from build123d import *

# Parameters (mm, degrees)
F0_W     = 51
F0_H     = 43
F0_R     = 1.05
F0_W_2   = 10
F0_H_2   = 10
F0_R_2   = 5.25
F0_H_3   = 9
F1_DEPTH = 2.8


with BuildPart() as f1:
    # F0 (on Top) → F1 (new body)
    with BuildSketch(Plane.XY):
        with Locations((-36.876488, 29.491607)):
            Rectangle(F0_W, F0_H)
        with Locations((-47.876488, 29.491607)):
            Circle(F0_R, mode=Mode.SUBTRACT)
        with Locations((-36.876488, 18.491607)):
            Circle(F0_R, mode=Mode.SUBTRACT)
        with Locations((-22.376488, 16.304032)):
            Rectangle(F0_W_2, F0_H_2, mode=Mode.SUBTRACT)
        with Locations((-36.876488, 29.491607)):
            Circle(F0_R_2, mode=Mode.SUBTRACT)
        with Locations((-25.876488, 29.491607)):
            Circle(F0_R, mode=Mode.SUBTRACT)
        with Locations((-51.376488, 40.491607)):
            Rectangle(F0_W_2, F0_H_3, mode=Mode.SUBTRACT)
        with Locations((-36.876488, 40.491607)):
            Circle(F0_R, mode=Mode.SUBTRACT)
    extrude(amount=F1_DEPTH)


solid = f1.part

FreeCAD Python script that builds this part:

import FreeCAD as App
import Part
import Sketcher
from FreeCAD import Vector
Q = App.Units.Quantity

doc = App.newDocument("Part")
params = doc.addObject("Spreadsheet::Sheet", "Params")
for row, (alias, value) in enumerate([
    ("sketch1_diameter", "2.1 mm"),
    ("sketch1_diameter2", "10.5 mm"),
    ("sketch1_width", "51 mm"),
    ("sketch1_width2", "10 mm"),
    ("sketch1_height", "43 mm"),
    ("pad1_length", "2.8 mm"),
], start=1):
    params.set(f"A{row}", alias)
    params.set(f"B{row}", "=" + value)
    params.setAlias(f"B{row}", alias)

body = doc.addObject("PartDesign::Body", "Body")

# Sketch on XY plane
sketch1 = body.newObject("Sketcher::SketchObject", "Sketch")
sketch1.AttachmentSupport = (doc.getObject("XY_Plane"), [""])
sketch1.MapMode = "FlatFace"
sketch1.addGeometry([
    Part.LineSegment(Vector(-62.376488, 50.991607, 0), Vector(-62.376488, 7.991607, 0)),  # 0
    Part.LineSegment(Vector(-62.376488, 7.991607, 0), Vector(-11.376488, 7.991607, 0)),  # 1
    Part.LineSegment(Vector(-11.376488, 7.991607, 0), Vector(-11.376488, 50.991607, 0)),  # 2
    Part.LineSegment(Vector(-11.376488, 50.991607, 0), Vector(-62.376488, 50.991607, 0)),  # 3
    Part.Circle(Vector(-36.876488, 18.491607, 0), Vector(0, 0, 1), 1.05),  # 4
    Part.LineSegment(Vector(-17.376488, 11.304032, 0), Vector(-27.376488, 11.304032, 0)),  # 5
    Part.LineSegment(Vector(-27.376488, 11.304032, 0), Vector(-27.376488, 21.304032, 0)),  # 6
    Part.LineSegment(Vector(-27.376488, 21.304032, 0), Vector(-17.376488, 21.304032, 0)),  # 7
    Part.LineSegment(Vector(-17.376488, 21.304032, 0), Vector(-17.376488, 11.304032, 0)),  # 8
    Part.Circle(Vector(-47.876488, 29.491607, 0), Vector(0, 0, 1), 1.05),  # 9
    Part.LineSegment(Vector(-46.376488, 35.991607, 0), Vector(-56.376488, 35.991607, 0)),  # 10
    Part.LineSegment(Vector(-56.376488, 35.991607, 0), Vector(-56.376488, 44.991607, 0)),  # 11
    Part.LineSegment(Vector(-56.376488, 44.991607, 0), Vector(-46.376488, 44.991607, 0)),  # 12
    Part.LineSegment(Vector(-46.376488, 44.991607, 0), Vector(-46.376488, 35.991607, 0)),  # 13
    Part.Circle(Vector(-36.876488, 29.491607, 0), Vector(0, 0, 1), 5.25),  # 14
    Part.Circle(Vector(-25.876488, 29.491607, 0), Vector(0, 0, 1), 1.05),  # 15
    Part.Circle(Vector(-36.876488, 40.491607, 0), Vector(0, 0, 1), 1.05),  # 16
], False)
sketch1.addConstraint([
    Sketcher.Constraint("Coincident", 0, 2, 1, 1),
    Sketcher.Constraint("Coincident", 1, 2, 2, 1),
    Sketcher.Constraint("Coincident", 2, 2, 3, 1),
    Sketcher.Constraint("Coincident", 3, 2, 0, 1),
    Sketcher.Constraint("Coincident", 5, 2, 6, 1),
    Sketcher.Constraint("Coincident", 6, 2, 7, 1),
    Sketcher.Constraint("Coincident", 7, 2, 8, 1),
    Sketcher.Constraint("Coincident", 8, 2, 5, 1),
    Sketcher.Constraint("Coincident", 10, 2, 11, 1),
    Sketcher.Constraint("Coincident", 11, 2, 12, 1),
    Sketcher.Constraint("Coincident", 12, 2, 13, 1),
    Sketcher.Constraint("Coincident", 13, 2, 10, 1),
    Sketcher.Constraint("Vertical", 0),
    Sketcher.Constraint("Horizontal", 1),
    Sketcher.Constraint("Vertical", 2),
    Sketcher.Constraint("Horizontal", 3),
    Sketcher.Constraint("Horizontal", 5),
    Sketcher.Constraint("Vertical", 6),
    Sketcher.Constraint("Horizontal", 7),
    Sketcher.Constraint("Vertical", 8),
    Sketcher.Constraint("Horizontal", 10),
    Sketcher.Constraint("Vertical", 11),
    Sketcher.Constraint("Horizontal", 12),
    Sketcher.Constraint("Vertical", 13),
    Sketcher.Constraint("Equal", 4, 9),
    Sketcher.Constraint("Equal", 9, 15),
    Sketcher.Constraint("Equal", 15, 16),
    Sketcher.Constraint("Horizontal", 9, 3, 14, 3),
    Sketcher.Constraint("Horizontal", 14, 3, 15, 3),
    Sketcher.Constraint("Vertical", 4, 3, 14, 3),
    Sketcher.Constraint("Vertical", 14, 3, 16, 3),
    Sketcher.Constraint("Equal", 7, 10),
    Sketcher.Constraint("Equal", 12, 6),
    Sketcher.Constraint("Diameter", 4, Q("2.1 mm")),
    Sketcher.Constraint("Diameter", 14, Q("10.5 mm")),
    Sketcher.Constraint("DistanceX", 1, 1, 1, 2, Q("51 mm")),
    Sketcher.Constraint("DistanceX", 5, 2, 5, 1, Q("10 mm")),
    Sketcher.Constraint("DistanceY", 0, 2, 0, 1, Q("43 mm")),
    Sketcher.Constraint("DistanceY", 11, 1, 11, 2, Q("9 mm")),
    Sketcher.Constraint("DistanceX", 9, 3, 4, 3, Q("11 mm")),
    Sketcher.Constraint("DistanceY", 4, 3, 9, 3, Q("11 mm")),
    Sketcher.Constraint("DistanceX", 14, 3, 15, 3, Q("11 mm")),
    Sketcher.Constraint("DistanceY", 14, 3, 16, 3, Q("11 mm")),
    Sketcher.Constraint("DistanceX", 5, 2, 1, 2, Q("16 mm")),
    Sketcher.Constraint("DistanceX", 3, 2, 10, 2, Q("6 mm")),
    Sketcher.Constraint("DistanceY", 10, 2, 3, 2, Q("15 mm")),
    Sketcher.Constraint("DistanceX", 0, 2, 9, 3, Q("14.5 mm")),
    Sketcher.Constraint("DistanceY", 0, 2, 9, 3, Q("21.5 mm")),
    Sketcher.Constraint("DistanceX", 4, 3, -1, 1, Q("36.876488 mm")),
    Sketcher.Constraint("DistanceY", -1, 1, 6, 2, Q("21.304032 mm")),
    Sketcher.Constraint("DistanceY", -1, 1, 4, 3, Q("18.491607 mm")),
])
sketch1.setExpression("Constraints[33]", "Params.sketch1_diameter")
sketch1.setExpression("Constraints[34]", "Params.sketch1_diameter2")
sketch1.setExpression("Constraints[35]", "Params.sketch1_width")
sketch1.setExpression("Constraints[36]", "Params.sketch1_width2")
sketch1.setExpression("Constraints[37]", "Params.sketch1_height")
pad1 = body.newObject("PartDesign::Pad", "Pad")
pad1.Profile = sketch1
pad1.setExpression("Length", "Params.pad1_length")

doc.recompute()
